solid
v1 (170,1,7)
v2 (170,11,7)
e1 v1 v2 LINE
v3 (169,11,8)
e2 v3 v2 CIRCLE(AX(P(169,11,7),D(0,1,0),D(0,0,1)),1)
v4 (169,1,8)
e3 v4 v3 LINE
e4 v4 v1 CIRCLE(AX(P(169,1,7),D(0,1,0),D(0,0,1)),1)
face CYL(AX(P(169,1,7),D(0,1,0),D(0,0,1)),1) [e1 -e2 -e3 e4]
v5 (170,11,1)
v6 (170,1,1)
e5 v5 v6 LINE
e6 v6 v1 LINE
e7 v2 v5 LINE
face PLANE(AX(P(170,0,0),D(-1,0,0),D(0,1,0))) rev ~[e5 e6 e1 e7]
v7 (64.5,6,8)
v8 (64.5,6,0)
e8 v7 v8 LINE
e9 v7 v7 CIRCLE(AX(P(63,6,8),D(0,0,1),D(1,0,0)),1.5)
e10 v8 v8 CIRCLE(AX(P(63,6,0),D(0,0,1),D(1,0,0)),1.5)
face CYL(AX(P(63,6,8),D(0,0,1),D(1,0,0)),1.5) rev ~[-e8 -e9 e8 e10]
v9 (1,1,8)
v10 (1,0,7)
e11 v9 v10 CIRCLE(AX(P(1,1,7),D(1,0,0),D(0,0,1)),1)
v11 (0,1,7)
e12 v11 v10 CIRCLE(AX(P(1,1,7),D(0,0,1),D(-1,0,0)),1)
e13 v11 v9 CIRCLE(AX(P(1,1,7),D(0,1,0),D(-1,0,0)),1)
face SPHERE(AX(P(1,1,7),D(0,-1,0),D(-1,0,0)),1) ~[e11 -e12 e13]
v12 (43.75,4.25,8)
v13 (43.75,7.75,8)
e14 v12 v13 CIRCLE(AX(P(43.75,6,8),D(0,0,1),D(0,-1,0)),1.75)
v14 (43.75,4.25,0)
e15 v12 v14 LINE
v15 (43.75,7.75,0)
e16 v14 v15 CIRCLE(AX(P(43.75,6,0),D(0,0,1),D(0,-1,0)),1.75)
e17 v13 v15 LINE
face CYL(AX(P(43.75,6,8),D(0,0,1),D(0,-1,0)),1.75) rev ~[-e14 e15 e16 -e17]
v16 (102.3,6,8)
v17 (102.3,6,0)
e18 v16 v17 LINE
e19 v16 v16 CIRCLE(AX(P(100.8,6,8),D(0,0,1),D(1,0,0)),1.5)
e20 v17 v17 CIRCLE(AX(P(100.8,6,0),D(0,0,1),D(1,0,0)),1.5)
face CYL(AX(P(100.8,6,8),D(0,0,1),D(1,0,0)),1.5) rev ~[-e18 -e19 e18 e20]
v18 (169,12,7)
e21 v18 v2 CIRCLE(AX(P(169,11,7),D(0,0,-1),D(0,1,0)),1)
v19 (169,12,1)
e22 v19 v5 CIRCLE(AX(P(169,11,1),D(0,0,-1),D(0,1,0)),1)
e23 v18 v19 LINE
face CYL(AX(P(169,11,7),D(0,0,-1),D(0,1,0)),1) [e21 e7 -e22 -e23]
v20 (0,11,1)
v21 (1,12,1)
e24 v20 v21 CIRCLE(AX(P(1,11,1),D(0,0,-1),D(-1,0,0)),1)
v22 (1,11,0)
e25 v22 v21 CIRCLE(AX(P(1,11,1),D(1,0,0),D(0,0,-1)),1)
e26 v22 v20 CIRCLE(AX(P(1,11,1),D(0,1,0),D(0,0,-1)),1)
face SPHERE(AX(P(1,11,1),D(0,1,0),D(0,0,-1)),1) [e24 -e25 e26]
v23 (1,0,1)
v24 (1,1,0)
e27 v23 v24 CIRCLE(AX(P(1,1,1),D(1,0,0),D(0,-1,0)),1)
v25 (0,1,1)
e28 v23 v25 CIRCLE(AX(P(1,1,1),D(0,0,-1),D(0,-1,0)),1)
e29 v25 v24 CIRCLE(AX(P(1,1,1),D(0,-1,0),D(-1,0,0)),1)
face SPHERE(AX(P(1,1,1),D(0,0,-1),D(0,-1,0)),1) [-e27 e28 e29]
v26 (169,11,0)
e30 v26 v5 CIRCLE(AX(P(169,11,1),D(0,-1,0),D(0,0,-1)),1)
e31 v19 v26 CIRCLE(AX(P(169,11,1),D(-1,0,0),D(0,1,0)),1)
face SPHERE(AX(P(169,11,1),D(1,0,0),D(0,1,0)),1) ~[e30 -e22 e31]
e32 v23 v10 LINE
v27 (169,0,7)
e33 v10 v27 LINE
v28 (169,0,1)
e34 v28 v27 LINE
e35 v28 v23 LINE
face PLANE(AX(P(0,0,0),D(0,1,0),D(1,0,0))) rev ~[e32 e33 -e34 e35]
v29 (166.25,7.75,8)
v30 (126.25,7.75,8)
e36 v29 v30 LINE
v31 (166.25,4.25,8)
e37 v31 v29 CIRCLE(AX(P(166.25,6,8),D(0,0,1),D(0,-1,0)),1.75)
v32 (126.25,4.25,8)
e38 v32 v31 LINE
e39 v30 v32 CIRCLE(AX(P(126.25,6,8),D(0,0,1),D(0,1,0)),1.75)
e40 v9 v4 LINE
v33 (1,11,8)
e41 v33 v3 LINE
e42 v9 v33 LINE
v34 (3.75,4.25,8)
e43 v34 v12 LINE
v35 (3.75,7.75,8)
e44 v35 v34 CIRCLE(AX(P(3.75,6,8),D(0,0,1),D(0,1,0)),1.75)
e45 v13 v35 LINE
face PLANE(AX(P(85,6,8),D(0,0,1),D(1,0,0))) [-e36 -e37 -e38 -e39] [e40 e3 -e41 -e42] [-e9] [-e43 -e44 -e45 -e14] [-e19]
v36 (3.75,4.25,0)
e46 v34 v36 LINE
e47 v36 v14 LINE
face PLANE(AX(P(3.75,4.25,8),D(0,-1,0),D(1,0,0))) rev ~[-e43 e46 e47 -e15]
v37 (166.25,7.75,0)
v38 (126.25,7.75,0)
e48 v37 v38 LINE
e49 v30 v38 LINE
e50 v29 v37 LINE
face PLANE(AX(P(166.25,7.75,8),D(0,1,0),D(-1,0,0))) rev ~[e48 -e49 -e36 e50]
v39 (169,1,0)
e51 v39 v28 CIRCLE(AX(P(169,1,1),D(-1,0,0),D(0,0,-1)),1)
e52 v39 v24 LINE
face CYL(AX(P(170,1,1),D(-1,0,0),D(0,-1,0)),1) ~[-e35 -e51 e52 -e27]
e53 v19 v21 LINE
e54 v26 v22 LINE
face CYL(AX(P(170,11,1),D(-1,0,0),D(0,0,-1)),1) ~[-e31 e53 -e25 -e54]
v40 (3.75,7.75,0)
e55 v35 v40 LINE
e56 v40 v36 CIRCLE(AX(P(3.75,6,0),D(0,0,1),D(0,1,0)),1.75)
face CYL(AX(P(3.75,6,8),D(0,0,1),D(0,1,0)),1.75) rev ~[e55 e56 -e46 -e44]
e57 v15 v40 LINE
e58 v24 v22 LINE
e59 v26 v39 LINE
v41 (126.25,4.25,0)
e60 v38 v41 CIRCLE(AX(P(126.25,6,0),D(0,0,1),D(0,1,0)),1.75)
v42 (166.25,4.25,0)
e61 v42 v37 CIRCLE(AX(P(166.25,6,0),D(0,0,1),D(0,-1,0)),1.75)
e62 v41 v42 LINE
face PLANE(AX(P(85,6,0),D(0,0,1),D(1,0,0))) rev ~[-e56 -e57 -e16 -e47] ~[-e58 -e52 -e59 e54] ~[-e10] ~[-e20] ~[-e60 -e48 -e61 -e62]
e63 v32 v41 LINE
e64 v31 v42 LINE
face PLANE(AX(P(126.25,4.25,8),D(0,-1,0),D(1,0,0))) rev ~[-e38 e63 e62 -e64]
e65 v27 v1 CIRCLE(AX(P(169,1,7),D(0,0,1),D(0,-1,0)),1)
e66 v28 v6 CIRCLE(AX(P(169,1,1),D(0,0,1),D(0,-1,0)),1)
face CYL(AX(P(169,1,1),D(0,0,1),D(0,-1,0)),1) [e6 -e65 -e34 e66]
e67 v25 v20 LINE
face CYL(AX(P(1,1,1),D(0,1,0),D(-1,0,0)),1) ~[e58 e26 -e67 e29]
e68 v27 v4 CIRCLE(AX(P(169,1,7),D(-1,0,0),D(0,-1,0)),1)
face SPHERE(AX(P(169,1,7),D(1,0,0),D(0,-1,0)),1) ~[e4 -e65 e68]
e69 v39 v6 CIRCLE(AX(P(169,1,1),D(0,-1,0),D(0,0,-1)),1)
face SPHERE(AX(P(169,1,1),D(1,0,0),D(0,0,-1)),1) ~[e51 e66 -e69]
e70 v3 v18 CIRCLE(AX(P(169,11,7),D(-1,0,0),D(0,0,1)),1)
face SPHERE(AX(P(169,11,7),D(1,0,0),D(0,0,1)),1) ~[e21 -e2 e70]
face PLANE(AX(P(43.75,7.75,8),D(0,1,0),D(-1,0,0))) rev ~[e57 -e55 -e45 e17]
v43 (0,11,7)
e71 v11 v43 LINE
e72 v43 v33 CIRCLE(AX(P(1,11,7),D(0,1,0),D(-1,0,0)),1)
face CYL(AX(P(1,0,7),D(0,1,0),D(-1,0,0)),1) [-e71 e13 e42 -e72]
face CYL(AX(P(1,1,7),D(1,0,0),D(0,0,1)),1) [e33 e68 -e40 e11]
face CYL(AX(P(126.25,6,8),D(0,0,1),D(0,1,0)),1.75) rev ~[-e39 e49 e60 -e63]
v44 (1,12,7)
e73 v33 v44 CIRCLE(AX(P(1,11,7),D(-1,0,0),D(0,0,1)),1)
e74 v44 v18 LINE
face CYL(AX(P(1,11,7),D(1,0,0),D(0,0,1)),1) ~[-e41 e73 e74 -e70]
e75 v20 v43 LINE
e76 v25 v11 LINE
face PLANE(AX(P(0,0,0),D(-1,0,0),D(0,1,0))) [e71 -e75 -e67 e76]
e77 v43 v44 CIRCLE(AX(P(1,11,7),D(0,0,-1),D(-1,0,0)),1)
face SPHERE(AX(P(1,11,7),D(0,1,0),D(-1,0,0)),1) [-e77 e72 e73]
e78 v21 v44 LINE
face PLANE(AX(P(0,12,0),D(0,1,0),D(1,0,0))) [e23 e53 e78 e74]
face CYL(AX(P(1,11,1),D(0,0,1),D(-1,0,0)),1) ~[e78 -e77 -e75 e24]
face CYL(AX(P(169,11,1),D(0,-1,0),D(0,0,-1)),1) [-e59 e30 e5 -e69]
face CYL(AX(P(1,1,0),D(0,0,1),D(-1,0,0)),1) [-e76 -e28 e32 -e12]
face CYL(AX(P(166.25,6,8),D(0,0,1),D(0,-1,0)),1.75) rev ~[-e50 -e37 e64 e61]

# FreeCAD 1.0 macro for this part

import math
import FreeCAD as App
import Part
import Sketcher
from FreeCAD import Vector


def edges_at(feature, points):
    """Names of the edges that pass closest to the given points."""
    edges = feature.Shape.Edges
    near = lambda p: min(range(len(edges)), key=lambda i: edges[i].distToShape(Part.Vertex(*p))[0])
    return sorted({f"Edge{near(p) + 1}" for p in points})

doc = App.newDocument("Part")
body = doc.addObject("PartDesign::Body", "Body")

# Sketch on XY plane
sketch1 = body.newObject("Sketcher::SketchObject", "Sketch")
sketch1.AttachmentSupport = (doc.getObject("XY_Plane"), [""])
sketch1.MapMode = "FlatFace"
sketch1.addGeometry([
    Part.LineSegment(Vector(0, 12, 0), Vector(0, 0, 0)),
    Part.LineSegment(Vector(0, 0, 0), Vector(170, 0, 0)),
    Part.LineSegment(Vector(170, 0, 0), Vector(170, 12, 0)),
    Part.LineSegment(Vector(170, 12, 0), Vector(0, 12, 0)),
], False)
sketch1.addConstraint([
    Sketcher.Constraint("Coincident", 0, 2, 1, 1),
    Sketcher.Constraint("Coincident", 1, 2, 2, 1),
    Sketcher.Constraint("Coincident", 2, 2, 3, 1),
    Sketcher.Constraint("Coincident", 3, 2, 0, 1),
    Sketcher.Constraint("Vertical", 0),
    Sketcher.Constraint("Horizontal", 1),
    Sketcher.Constraint("Vertical", 2),
    Sketcher.Constraint("Horizontal", 3),
    Sketcher.Constraint("Coincident", 0, 2, -1, 1),
    Sketcher.Constraint("DistanceX", 1, 1, 1, 2, 170.0),
    Sketcher.Constraint("DistanceY", 0, 2, 0, 1, 12.0),
])
pad1 = body.newObject("PartDesign::Pad", "Pad")
pad1.Profile = sketch1
pad1.Length = 8

# Sketch on XY plane
sketch2 = body.newObject("Sketcher::SketchObject", "Sketch001")
sketch2.AttachmentSupport = (doc.getObject("XY_Plane"), [""])
sketch2.MapMode = "FlatFace"
sketch2.AttachmentOffset = App.Placement(Vector(0, 0, 8), App.Rotation())
sketch2.addGeometry([
    Part.ArcOfCircle(Part.Circle(Vector(3.8, 6, 0), Vector(0, 0, 1), 1.8), math.radians(90), math.radians(270)),
    Part.LineSegment(Vector(3.8, 4.2, 0), Vector(43.8, 4.2, 0)),
    Part.ArcOfCircle(Part.Circle(Vector(43.8, 6, 0), Vector(0, 0, 1), 1.8), math.radians(-90), math.radians(90)),
    Part.LineSegment(Vector(43.8, 7.8, 0), Vector(3.8, 7.8, 0)),
], False)
sketch2.addConstraint([
    Sketcher.Constraint("Tangent", 0, 2, 1, 1),
    Sketcher.Constraint("Tangent", 1, 2, 2, 1),
    Sketcher.Constraint("Tangent", 2, 2, 3, 1),
    Sketcher.Constraint("Tangent", 3, 2, 0, 1),
    Sketcher.Constraint("Horizontal", 1),
    Sketcher.Constraint("Horizontal", 3),
    Sketcher.Constraint("DistanceX", 1, 1, 1, 2, 40.0),
    Sketcher.Constraint("Radius", 0, 1.75),
    Sketcher.Constraint("DistanceY", -1, 1, 0, 3, 6.0),
    Sketcher.Constraint("DistanceX", -1, 1, 0, 3, 3.75),
])
pocket1 = body.newObject("PartDesign::Pocket", "Pocket")
pocket1.Profile = sketch2
pocket1.Length = 8

# Sketch on XY plane
sketch3 = body.newObject("Sketcher::SketchObject", "Sketch002")
sketch3.AttachmentSupport = (doc.getObject("XY_Plane"), [""])
sketch3.MapMode = "FlatFace"
sketch3.AttachmentOffset = App.Placement(Vector(0, 0, 8), App.Rotation())
sketch3.addGeometry([
    Part.ArcOfCircle(Part.Circle(Vector(126.2, 6, 0), Vector(0, 0, 1), 1.8), math.radians(90), math.radians(270)),
    Part.LineSegment(Vector(126.2, 4.2, 0), Vector(166.2, 4.2, 0)),
    Part.ArcOfCircle(Part.Circle(Vector(166.2, 6, 0), Vector(0, 0, 1), 1.8), math.radians(-90), math.radians(90)),
    Part.LineSegment(Vector(166.2, 7.8, 0), Vector(126.2, 7.8, 0)),
], False)
sketch3.addConstraint([
    Sketcher.Constraint("Tangent", 0, 2, 1, 1),
    Sketcher.Constraint("Tangent", 1, 2, 2, 1),
    Sketcher.Constraint("Tangent", 2, 2, 3, 1),
    Sketcher.Constraint("Tangent", 3, 2, 0, 1),
    Sketcher.Constraint("Horizontal", 1),
    Sketcher.Constraint("Horizontal", 3),
    Sketcher.Constraint("DistanceX", 1, 1, 1, 2, 40.0),
    Sketcher.Constraint("Radius", 0, 1.75),
    Sketcher.Constraint("DistanceY", -1, 1, 0, 3, 6.0),
    Sketcher.Constraint("DistanceX", -1, 1, 0, 3, 126.25),
])
pocket2 = body.newObject("PartDesign::Pocket", "Pocket001")
pocket2.Profile = sketch3
pocket2.Length = 8
doc.recompute()

fillet = body.newObject("PartDesign::Fillet", "Fillet")
fillet.Base = (pocket2, edges_at(pocket2, [(0, 6, 8)]))
fillet.Radius = 1
doc.recompute()

fillet2 = body.newObject("PartDesign::Fillet", "Fillet001")
fillet2.Base = (fillet, edges_at(fillet, [(0, 0, 3.5)]))
fillet2.Radius = 1
doc.recompute()

fillet3 = body.newObject("PartDesign::Fillet", "Fillet002")
fillet3.Base = (fillet2, edges_at(fillet2, [(0, 6.5, 0)]))
fillet3.Radius = 1
doc.recompute()

fillet4 = body.newObject("PartDesign::Fillet", "Fillet003")
fillet4.Base = (fillet3, edges_at(fillet3, [(0, 12, 4)]))
fillet4.Radius = 1
doc.recompute()

fillet5 = body.newObject("PartDesign::Fillet", "Fillet004")
fillet5.Base = (fillet4, edges_at(fillet4, [(170, 6, 8)]))
fillet5.Radius = 1

# Sketch on XY plane
sketch4 = body.newObject("Sketcher::SketchObject", "Sketch003")
sketch4.AttachmentSupport = (doc.getObject("XY_Plane"), [""])
sketch4.MapMode = "FlatFace"
sketch4.AttachmentOffset = App.Placement(Vector(0, 0, 8), App.Rotation())
sketch4.addGeometry([
    Part.Circle(Vector(63, 6, 0), Vector(0, 0, 1), 1.5),
    Part.Circle(Vector(100.8, 6, 0), Vector(0, 0, 1), 1.5),
], False)
sketch4.addConstraint([
    Sketcher.Constraint("Equal", 0, 1),
    Sketcher.Constraint("Horizontal", 0, 3, 1, 3),
    Sketcher.Constraint("Diameter", 0, 3.0),
    Sketcher.Constraint("DistanceX", -1, 1, 0, 3, 63.0),
    Sketcher.Constraint("DistanceY", -1, 1, 0, 3, 6.0),
    Sketcher.Constraint("DistanceX", -1, 1, 1, 3, 100.8),
])
pocket3 = body.newObject("PartDesign::Pocket", "Pocket002")
pocket3.Profile = sketch4
pocket3.Length = 8

doc.recompute()
